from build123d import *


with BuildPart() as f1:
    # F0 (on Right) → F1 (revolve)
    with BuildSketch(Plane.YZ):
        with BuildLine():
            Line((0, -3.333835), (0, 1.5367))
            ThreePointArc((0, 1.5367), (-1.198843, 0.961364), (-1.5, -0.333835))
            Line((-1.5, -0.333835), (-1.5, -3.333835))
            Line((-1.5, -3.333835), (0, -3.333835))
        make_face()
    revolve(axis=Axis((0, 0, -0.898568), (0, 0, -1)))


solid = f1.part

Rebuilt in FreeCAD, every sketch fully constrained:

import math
import FreeCAD as App
import Part
import Sketcher
from FreeCAD import Vector

doc = App.newDocument("Part")
params = doc.addObject("Spreadsheet::Sheet", "Params")
for row, (alias, value) in enumerate([
    ("sketch1_height", "3 mm"),
    ("sketch1_width", "1.5 mm"),
    ("revolution_angle", "360 deg"),
], start=1):
    params.set(f"A{row}", alias)
    params.set(f"B{row}", "=" + value)
    params.setAlias(f"B{row}", alias)

body = doc.addObject("PartDesign::Body", "Body")

sketch1 = body.newObject("Sketcher::SketchObject", "Sketch")
sketch1.AttachmentSupport = (doc.getObject("YZ_Plane"), [""])
sketch1.MapMode = "FlatFace"
sketch1.addGeometry([
    Part.LineSegment(Vector(0, -3.3, 0), Vector(0, 1.5, 0)),
    Part.ArcOfCircle(Part.Circle(Vector(0, 0, 0), Vector(0, 0, 1), 1.5), math.radians(90), math.radians(193)),
    Part.LineSegment(Vector(-1.5, -0.3, 0), Vector(-1.5, -3.3, 0)),
    Part.LineSegment(Vector(-1.5, -3.3, 0), Vector(0, -3.3, 0)),
], False)
sketch1.addConstraint([
    Sketcher.Constraint("Coincident", 0, 2, 1, 1),
    Sketcher.Constraint("Coincident", 1, 2, 2, 1),
    Sketcher.Constraint("Coincident", 2, 2, 3, 1),
    Sketcher.Constraint("Coincident", 3, 2, 0, 1),
    Sketcher.Constraint("Vertical", 0),
    Sketcher.Constraint("Vertical", 2),
    Sketcher.Constraint("Horizontal", 3),
    Sketcher.Constraint("Coincident", 1, 3, -1, 1),
    Sketcher.Constraint("PointOnObject", 0, 2, -2),
    Sketcher.Constraint("DistanceY", 2, 2, 2, 1, 3.0),
    Sketcher.Constraint("DistanceX", 3, 1, 3, 2, 1.5),
    Sketcher.Constraint("Radius", 1, 1.5367),
])
sketch1.setExpression("Constraints[9]", "Params.sketch1_height")
sketch1.setExpression("Constraints[10]", "Params.sketch1_width")
revolution = body.newObject("PartDesign::Revolution", "Revolution")
revolution.Profile = sketch1
revolution.ReferenceAxis = (sketch1, ["V_Axis"])
revolution.setExpression("Angle", "Params.revolution_angle")

doc.recompute()
